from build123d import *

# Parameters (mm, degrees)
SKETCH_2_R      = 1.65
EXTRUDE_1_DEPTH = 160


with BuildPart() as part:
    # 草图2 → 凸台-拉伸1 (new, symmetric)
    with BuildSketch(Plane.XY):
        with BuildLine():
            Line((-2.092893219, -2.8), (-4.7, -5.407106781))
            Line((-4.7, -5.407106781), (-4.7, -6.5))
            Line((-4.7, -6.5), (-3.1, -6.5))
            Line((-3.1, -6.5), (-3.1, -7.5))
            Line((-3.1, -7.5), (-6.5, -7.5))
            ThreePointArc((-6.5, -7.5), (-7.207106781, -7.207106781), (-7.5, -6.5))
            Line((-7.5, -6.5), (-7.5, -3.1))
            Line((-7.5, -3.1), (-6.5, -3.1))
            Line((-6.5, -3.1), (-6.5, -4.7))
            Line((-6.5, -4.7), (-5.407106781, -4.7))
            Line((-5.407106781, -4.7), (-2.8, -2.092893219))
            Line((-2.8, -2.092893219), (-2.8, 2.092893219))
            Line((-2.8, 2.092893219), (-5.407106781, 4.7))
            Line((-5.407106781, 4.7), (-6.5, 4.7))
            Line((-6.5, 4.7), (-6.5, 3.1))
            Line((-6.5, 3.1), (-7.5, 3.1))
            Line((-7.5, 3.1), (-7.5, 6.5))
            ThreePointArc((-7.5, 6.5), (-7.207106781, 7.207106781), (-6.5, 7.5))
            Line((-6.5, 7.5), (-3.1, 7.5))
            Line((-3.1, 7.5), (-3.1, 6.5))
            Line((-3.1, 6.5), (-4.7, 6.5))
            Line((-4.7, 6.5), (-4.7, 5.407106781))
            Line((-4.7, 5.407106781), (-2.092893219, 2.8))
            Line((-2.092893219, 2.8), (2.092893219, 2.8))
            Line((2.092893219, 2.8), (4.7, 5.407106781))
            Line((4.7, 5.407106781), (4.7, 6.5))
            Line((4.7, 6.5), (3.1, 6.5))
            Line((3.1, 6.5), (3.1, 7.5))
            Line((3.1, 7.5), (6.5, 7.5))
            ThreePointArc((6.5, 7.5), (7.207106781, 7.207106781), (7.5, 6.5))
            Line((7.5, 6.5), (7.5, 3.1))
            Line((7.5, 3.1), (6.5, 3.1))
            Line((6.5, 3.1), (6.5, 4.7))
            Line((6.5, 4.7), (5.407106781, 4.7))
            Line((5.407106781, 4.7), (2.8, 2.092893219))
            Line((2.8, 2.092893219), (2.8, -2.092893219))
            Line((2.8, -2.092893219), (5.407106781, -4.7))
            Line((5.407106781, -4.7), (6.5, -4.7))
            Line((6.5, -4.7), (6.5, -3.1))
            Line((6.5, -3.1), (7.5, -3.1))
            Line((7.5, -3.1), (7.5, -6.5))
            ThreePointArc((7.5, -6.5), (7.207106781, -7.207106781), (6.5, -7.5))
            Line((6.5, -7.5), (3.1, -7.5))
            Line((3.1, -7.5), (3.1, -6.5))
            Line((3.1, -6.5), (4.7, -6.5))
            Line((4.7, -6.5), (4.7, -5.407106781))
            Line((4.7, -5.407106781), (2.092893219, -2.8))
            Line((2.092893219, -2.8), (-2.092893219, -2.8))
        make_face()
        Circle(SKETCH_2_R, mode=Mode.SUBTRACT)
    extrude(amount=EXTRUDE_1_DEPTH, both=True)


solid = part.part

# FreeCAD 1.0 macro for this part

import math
import FreeCAD as App
import Part
import Sketcher

V = App.Vector
Q = App.Units.Quantity

doc = App.newDocument("Part")
body = doc.addObject("PartDesign::Body", "Body")

# Sketch on XY plane
sketch1 = body.newObject("Sketcher::SketchObject", "Sketch")
sketch1.AttachmentSupport = (doc.getObject("XY_Plane"), [""])
sketch1.MapMode = "FlatFace"
sketch1.addGeometry([
    Part.LineSegment(V(-4.7, -5.4, 0), V(-2.1, -2.8, 0)),  # 0
    Part.LineSegment(V(-2.1, -2.8, 0), V(2.1, -2.8, 0)),  # 1
    Part.LineSegment(V(2.1, -2.8, 0), V(4.7, -5.4, 0)),  # 2
    Part.LineSegment(V(4.7, -5.4, 0), V(4.7, -6.5, 0)),  # 3
    Part.LineSegment(V(4.7, -6.5, 0), V(3.1, -6.5, 0)),  # 4
    Part.LineSegment(V(3.1, -6.5, 0), V(3.1, -7.5, 0)),  # 5
    Part.LineSegment(V(3.1, -7.5, 0), V(6.5, -7.5, 0)),  # 6
    Part.ArcOfCircle(Part.Circle(V(6.5, -6.5, 0), V(0, 0, 1), 1), math.radians(-90), math.radians(0)),  # 7
    Part.LineSegment(V(7.5, -6.5, 0), V(7.5, -3.1, 0)),  # 8
    Part.LineSegment(V(7.5, -3.1, 0), V(6.5, -3.1, 0)),  # 9
    Part.LineSegment(V(6.5, -3.1, 0), V(6.5, -4.7, 0)),  # 10
    Part.LineSegment(V(6.5, -4.7, 0), V(5.4, -4.7, 0)),  # 11
    Part.LineSegment(V(5.4, -4.7, 0), V(2.8, -2.1, 0)),  # 12
    Part.LineSegment(V(2.8, -2.1, 0), V(2.8, 2.1, 0)),  # 13
    Part.LineSegment(V(2.8, 2.1, 0), V(5.4, 4.7, 0)),  # 14
    Part.LineSegment(V(5.4, 4.7, 0), V(6.5, 4.7, 0)),  # 15
    Part.LineSegment(V(6.5, 4.7, 0), V(6.5, 3.1, 0)),  # 16
    Part.LineSegment(V(6.5, 3.1, 0), V(7.5, 3.1, 0)),  # 17
    Part.LineSegment(V(7.5, 3.1, 0), V(7.5, 6.5, 0)),  # 18
    Part.ArcOfCircle(Part.Circle(V(6.5, 6.5, 0), V(0, 0, 1), 1), math.radians(0), math.radians(90)),  # 19
    Part.LineSegment(V(6.5, 7.5, 0), V(3.1, 7.5, 0)),  # 20
    Part.LineSegment(V(3.1, 7.5, 0), V(3.1, 6.5, 0)),  # 21
    Part.LineSegment(V(3.1, 6.5, 0), V(4.7, 6.5, 0)),  # 22
    Part.LineSegment(V(4.7, 6.5, 0), V(4.7, 5.4, 0)),  # 23
    Part.LineSegment(V(4.7, 5.4, 0), V(2.1, 2.8, 0)),  # 24
    Part.LineSegment(V(2.1, 2.8, 0), V(-2.1, 2.8, 0)),  # 25
    Part.LineSegment(V(-2.1, 2.8, 0), V(-4.7, 5.4, 0)),  # 26
    Part.LineSegment(V(-4.7, 5.4, 0), V(-4.7, 6.5, 0)),  # 27
    Part.LineSegment(V(-4.7, 6.5, 0), V(-3.1, 6.5, 0)),  # 28
    Part.LineSegment(V(-3.1, 6.5, 0), V(-3.1, 7.5, 0)),  # 29
    Part.LineSegment(V(-3.1, 7.5, 0), V(-6.5, 7.5, 0)),  # 30
    Part.ArcOfCircle(Part.Circle(V(-6.5, 6.5, 0), V(0, 0, 1), 1), math.radians(90), math.radians(180)),  # 31
    Part.LineSegment(V(-7.5, 6.5, 0), V(-7.5, 3.1, 0)),  # 32
    Part.LineSegment(V(-7.5, 3.1, 0), V(-6.5, 3.1, 0)),  # 33
    Part.LineSegment(V(-6.5, 3.1, 0), V(-6.5, 4.7, 0)),  # 34
    Part.LineSegment(V(-6.5, 4.7, 0), V(-5.4, 4.7, 0)),  # 35
    Part.LineSegment(V(-5.4, 4.7, 0), V(-2.8, 2.1, 0)),  # 36
    Part.LineSegment(V(-2.8, 2.1, 0), V(-2.8, -2.1, 0)),  # 37
    Part.LineSegment(V(-2.8, -2.1, 0), V(-5.4, -4.7, 0)),  # 38
    Part.LineSegment(V(-5.4, -4.7, 0), V(-6.5, -4.7, 0)),  # 39
    Part.LineSegment(V(-6.5, -4.7, 0), V(-6.5, -3.1, 0)),  # 40
    Part.LineSegment(V(-6.5, -3.1, 0), V(-7.5, -3.1, 0)),  # 41
    Part.LineSegment(V(-7.5, -3.1, 0), V(-7.5, -6.5, 0)),  # 42
    Part.ArcOfCircle(Part.Circle(V(-6.5, -6.5, 0), V(0, 0, 1), 1), math.radians(-180), math.radians(-90)),  # 43
    Part.LineSegment(V(-6.5, -7.5, 0), V(-3.1, -7.5, 0)),  # 44
    Part.LineSegment(V(-3.1, -7.5, 0), V(-3.1, -6.5, 0)),  # 45
    Part.LineSegment(V(-3.1, -6.5, 0), V(-4.7, -6.5, 0)),  # 46
    Part.LineSegment(V(-4.7, -6.5, 0), V(-4.7, -5.4, 0)),  # 47
    Part.Circle(V(0, 0, 0), V(0, 0, 1), 1.6),  # 48
], False)
sketch1.addConstraint([
    Sketcher.Constraint("Coincident", 0, 2, 1, 1),
    Sketcher.Constraint("Coincident", 1, 2, 2, 1),
    Sketcher.Constraint("Coincident", 2, 2, 3, 1),
    Sketcher.Constraint("Coincident", 3, 2, 4, 1),
    Sketcher.Constraint("Coincident", 4, 2, 5, 1),
    Sketcher.Constraint("Coincident", 5, 2, 6, 1),
    Sketcher.Constraint("Tangent", 6, 2, 7, 1),
    Sketcher.Constraint("Tangent", 7, 2, 8, 1),
    Sketcher.Constraint("Coincident", 8, 2, 9, 1),
    Sketcher.Constraint("Coincident", 9, 2, 10, 1),
    Sketcher.Constraint("Coincident", 10, 2, 11, 1),
    Sketcher.Constraint("Coincident", 11, 2, 12, 1),
    Sketcher.Constraint("Coincident", 12, 2, 13, 1),
    Sketcher.Constraint("Coincident", 13, 2, 14, 1),
    Sketcher.Constraint("Coincident", 14, 2, 15, 1),
    Sketcher.Constraint("Coincident", 15, 2, 16, 1),
    Sketcher.Constraint("Coincident", 16, 2, 17, 1),
    Sketcher.Constraint("Coincident", 17, 2, 18, 1),
    Sketcher.Constraint("Tangent", 18, 2, 19, 1),
    Sketcher.Constraint("Tangent", 19, 2, 20, 1),
    Sketcher.Constraint("Coincident", 20, 2, 21, 1),
    Sketcher.Constraint("Coincident", 21, 2, 22, 1),
    Sketcher.Constraint("Coincident", 22, 2, 23, 1),
    Sketcher.Constraint("Coincident", 23, 2, 24, 1),
    Sketcher.Constraint("Coincident", 24, 2, 25, 1),
    Sketcher.Constraint("Coincident", 25, 2, 26, 1),
    Sketcher.Constraint("Coincident", 26, 2, 27, 1),
    Sketcher.Constraint("Coincident", 27, 2, 28, 1),
    Sketcher.Constraint("Coincident", 28, 2, 29, 1),
    Sketcher.Constraint("Coincident", 29, 2, 30, 1),
    Sketcher.Constraint("Tangent", 30, 2, 31, 1),
    Sketcher.Constraint("Tangent", 31, 2, 32, 1),
    Sketcher.Constraint("Coincident", 32, 2, 33, 1),
    Sketcher.Constraint("Coincident", 33, 2, 34, 1),
    Sketcher.Constraint("Coincident", 34, 2, 35, 1),
    Sketcher.Constraint("Coincident", 35, 2, 36, 1),
    Sketcher.Constraint("Coincident", 36, 2, 37, 1),
    Sketcher.Constraint("Coincident", 37, 2, 38, 1),
    Sketcher.Constraint("Coincident", 38, 2, 39, 1),
    Sketcher.Constraint("Coincident", 39, 2, 40, 1),
    Sketcher.Constraint("Coincident", 40, 2, 41, 1),
    Sketcher.Constraint("Coincident", 41, 2, 42, 1),
    Sketcher.Constraint("Tangent", 42, 2, 43, 1),
    Sketcher.Constraint("Tangent", 43, 2, 44, 1),
    Sketcher.Constraint("Coincident", 44, 2, 45, 1),
    Sketcher.Constraint("Coincident", 45, 2, 46, 1),
    Sketcher.Constraint("Coincident", 46, 2, 47, 1),
    Sketcher.Constraint("Coincident", 47, 2, 0, 1),
    Sketcher.Constraint("Horizontal", 1),
    Sketcher.Constraint("Vertical", 3),
    Sketcher.Constraint("Horizontal", 4),
    Sketcher.Constraint("Vertical", 5),
    Sketcher.Constraint("Horizontal", 6),
    Sketcher.Constraint("Vertical", 8),
    Sketcher.Constraint("Horizontal", 9),
    Sketcher.Constraint("Vertical", 10),
    Sketcher.Constraint("Horizontal", 11),
    Sketcher.Constraint("Vertical", 13),
    Sketcher.Constraint("Horizontal", 15),
    Sketcher.Constraint("Vertical", 16),
    Sketcher.Constraint("Horizontal", 17),
    Sketcher.Constraint("Vertical", 18),
    Sketcher.Constraint("Horizontal", 20),
    Sketcher.Constraint("Vertical", 21),
    Sketcher.Constraint("Horizontal", 22),
    Sketcher.Constraint("Vertical", 23),
    Sketcher.Constraint("Horizontal", 25),
    Sketcher.Constraint("Vertical", 27),
    Sketcher.Constraint("Horizontal", 28),
    Sketcher.Constraint("Vertical", 29),
    Sketcher.Constraint("Horizontal", 30),
    Sketcher.Constraint("Vertical", 32),
    Sketcher.Constraint("Horizontal", 33),
    Sketcher.Constraint("Vertical", 34),
    Sketcher.Constraint("Horizontal", 35),
    Sketcher.Constraint("Vertical", 37),
    Sketcher.Constraint("Horizontal", 39),
    Sketcher.Constraint("Vertical", 40),
    Sketcher.Constraint("Horizontal", 41),
    Sketcher.Constraint("Vertical", 42),
    Sketcher.Constraint("Horizontal", 44),
    Sketcher.Constraint("Vertical", 45),
    Sketcher.Constraint("Horizontal", 46),
    Sketcher.Constraint("Vertical", 47),
    Sketcher.Constraint("Coincident", 48, 3, -1, 1),
    Sketcher.Constraint("Equal", 7, 19),
    Sketcher.Constraint("Equal", 19, 31),
    Sketcher.Constraint("Equal", 31, 43),
    Sketcher.Constraint("Symmetric", 7, 3, 31, 3, -1, 1),
    Sketcher.Constraint("Symmetric", 19, 3, 43, 3, -1, 1),
    Sketcher.Constraint("Symmetric", 0, 2, 24, 2, -1, 1),
    Sketcher.Constraint("Symmetric", 2, 2, 26, 2, -1, 1),
    Sketcher.Constraint("Symmetric", 4, 2, 28, 2, -1, 1),
    Sketcher.Constraint("Symmetric", 9, 2, 33, 2, -1, 1),
    Sketcher.Constraint("Symmetric", 11, 2, 35, 2, -1, 1),
    Sketcher.Constraint("Symmetric", 12, 2, 36, 2, -1, 1),
    Sketcher.Constraint("Symmetric", 14, 2, 38, 2, -1, 1),
    Sketcher.Constraint("Symmetric", 16, 2, 40, 2, -1, 1),
    Sketcher.Constraint("Symmetric", 21, 2, 45, 2, -1, 1),
    Sketcher.Constraint("Symmetric", 23, 2, 47, 2, -1, 1),
    Sketcher.Constraint("Symmetric", 19, 3, 31, 3, -2),
    Sketcher.Constraint("Symmetric", 23, 2, 26, 2, -2),
    Sketcher.Constraint("Symmetric", 21, 2, 28, 2, -2),
    Sketcher.Constraint("Symmetric", 16, 2, 33, 2, -2),
    Sketcher.Constraint("Symmetric", 14, 2, 35, 2, -2),
    Sketcher.Constraint("Perpendicular", 0, 2),
    Sketcher.Constraint("Parallel", 2, 12),
    Sketcher.Constraint("Perpendicular", 12, 14),
    Sketcher.Constraint("Perpendicular", 24, 26),
    Sketcher.Constraint("Perpendicular", 36, 38),
    Sketcher.Constraint("Horizontal", 43, 3, 3, 2),
    Sketcher.Constraint("Horizontal", 13, 2, 36, 2),
    Sketcher.Constraint("Vertical", 6, 2, 9, 2),
    Sketcher.Constraint("Equal", 39, 3),
    Sketcher.Constraint("Equal", 44, 8),
    Sketcher.Constraint("Equal", 46, 10),
    Sketcher.Constraint("Equal", 25, 13),
    Sketcher.Constraint("Equal", 2, 12),
    Sketcher.Constraint("Radius", 7, Q("1 mm")),
    Sketcher.Constraint("Diameter", 48, Q("3.3 mm")),
    Sketcher.Constraint("DistanceX", 4, 2, 4, 1, Q("1.6 mm")),
    Sketcher.Constraint("DistanceX", 6, 1, 6, 2, Q("3.4 mm")),
    Sketcher.Constraint("DistanceY", 7, 3, 19, 3, Q("13 mm")),
    Sketcher.Constraint("DistanceY", 0, 2, -1, 1, Q("2.8 mm")),
    Sketcher.Constraint("DistanceX", 1, 1, 1, 2, Q("4.185786 mm")),
])
pad1 = body.newObject("PartDesign::Pad", "Pad")
pad1.Profile = sketch1
pad1.Length = 320
pad1.Midplane = True

doc.recompute()
